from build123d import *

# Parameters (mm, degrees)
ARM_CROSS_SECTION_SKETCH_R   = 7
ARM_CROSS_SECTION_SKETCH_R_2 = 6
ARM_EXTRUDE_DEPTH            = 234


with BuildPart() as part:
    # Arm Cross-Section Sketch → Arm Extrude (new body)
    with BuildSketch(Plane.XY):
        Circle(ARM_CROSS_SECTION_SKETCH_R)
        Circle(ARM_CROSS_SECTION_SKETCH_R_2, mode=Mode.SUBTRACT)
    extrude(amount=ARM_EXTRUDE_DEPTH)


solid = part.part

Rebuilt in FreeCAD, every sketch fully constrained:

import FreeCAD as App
import Part
import Sketcher
Q = App.Units.Quantity

doc = App.newDocument("Part")
body = doc.addObject("PartDesign::Body", "Body")

# Sketch on XY plane
sketch1 = doc.addObject("Sketcher::SketchObject", "Sketch")
body.addObject(sketch1)
sketch1.AttachmentSupport = (doc.XY_Plane, [""])
sketch1.MapMode = "FlatFace"
sketch1.addGeometry(Part.Circle(App.Vector(0, 0, 0), App.Vector(0, 0, 1), 7), False)
sketch1.addGeometry(Part.Circle(App.Vector(0, 0, 0), App.Vector(0, 0, 1), 6), False)
sketch1.addConstraint(Sketcher.Constraint("Coincident", 0, 3, -1, 1))
sketch1.addConstraint(Sketcher.Constraint("Coincident", 1, 3, -1, 1))
sketch1.addConstraint(Sketcher.Constraint("Diameter", 0, Q("14 mm")))
sketch1.addConstraint(Sketcher.Constraint("Diameter", 1, Q("12 mm")))
pad1 = doc.addObject("PartDesign::Pad", "Pad")
body.addObject(pad1)
pad1.Profile = sketch1
pad1.Length = 234

doc.recompute()
